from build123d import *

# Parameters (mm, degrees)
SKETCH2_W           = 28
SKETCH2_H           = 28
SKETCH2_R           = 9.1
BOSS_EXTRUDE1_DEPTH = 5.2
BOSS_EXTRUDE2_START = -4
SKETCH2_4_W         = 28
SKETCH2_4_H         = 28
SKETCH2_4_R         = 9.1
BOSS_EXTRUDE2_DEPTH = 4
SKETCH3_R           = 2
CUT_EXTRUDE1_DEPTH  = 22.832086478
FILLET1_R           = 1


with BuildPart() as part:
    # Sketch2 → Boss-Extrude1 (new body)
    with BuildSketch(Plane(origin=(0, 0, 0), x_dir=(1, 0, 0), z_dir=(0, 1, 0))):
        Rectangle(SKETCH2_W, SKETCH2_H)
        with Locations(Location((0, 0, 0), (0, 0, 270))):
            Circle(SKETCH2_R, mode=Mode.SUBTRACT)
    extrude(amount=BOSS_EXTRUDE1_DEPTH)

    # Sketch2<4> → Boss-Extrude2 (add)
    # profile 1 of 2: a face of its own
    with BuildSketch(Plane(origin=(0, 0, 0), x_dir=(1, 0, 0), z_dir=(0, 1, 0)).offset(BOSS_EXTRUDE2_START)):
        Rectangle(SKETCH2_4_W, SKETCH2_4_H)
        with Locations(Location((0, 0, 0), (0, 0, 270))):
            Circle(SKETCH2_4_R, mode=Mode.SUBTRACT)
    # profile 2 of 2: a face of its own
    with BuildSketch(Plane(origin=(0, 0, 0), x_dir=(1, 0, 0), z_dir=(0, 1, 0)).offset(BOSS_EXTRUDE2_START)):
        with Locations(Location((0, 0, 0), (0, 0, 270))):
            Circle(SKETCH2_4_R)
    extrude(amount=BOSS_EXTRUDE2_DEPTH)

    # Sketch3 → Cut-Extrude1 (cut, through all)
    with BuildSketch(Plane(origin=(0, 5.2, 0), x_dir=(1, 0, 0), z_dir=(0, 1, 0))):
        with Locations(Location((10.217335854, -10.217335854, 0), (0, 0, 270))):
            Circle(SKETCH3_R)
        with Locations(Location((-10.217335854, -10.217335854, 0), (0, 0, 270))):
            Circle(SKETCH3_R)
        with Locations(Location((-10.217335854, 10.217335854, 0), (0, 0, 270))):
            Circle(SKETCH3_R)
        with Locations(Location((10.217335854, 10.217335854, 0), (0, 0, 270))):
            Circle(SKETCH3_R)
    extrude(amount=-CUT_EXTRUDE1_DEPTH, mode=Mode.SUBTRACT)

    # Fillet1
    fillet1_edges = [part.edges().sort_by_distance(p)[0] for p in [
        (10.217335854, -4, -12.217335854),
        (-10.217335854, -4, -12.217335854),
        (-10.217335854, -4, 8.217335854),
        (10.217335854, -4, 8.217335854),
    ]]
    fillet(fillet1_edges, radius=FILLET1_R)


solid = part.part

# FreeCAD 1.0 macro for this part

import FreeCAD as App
import Part
import Sketcher
from FreeCAD import Vector
Q = App.Units.Quantity


def edges_at(feature, points):
    """Names of the edges that pass closest to the given points."""
    edges = feature.Shape.Edges
    near = lambda p: min(range(len(edges)), key=lambda i: edges[i].distToShape(Part.Vertex(*p))[0])
    return sorted({f"Edge{near(p) + 1}" for p in points})


def add_polygon(sketch, points):
    """Adds a closed chain of lines whose ends are joined by coincident constraints."""
    first, n = sketch.GeometryCount, len(points)
    for a, b in zip(points, points[1:] + points[:1]):
        sketch.addGeometry(Part.LineSegment(App.Vector(*a, 0), App.Vector(*b, 0)), False)
    for i in range(n):
        sketch.addConstraint(Sketcher.Constraint("Coincident", first + i, 2, first + (i + 1) % n, 1))

doc = App.newDocument("Part")
params = doc.addObject("Spreadsheet::Sheet", "Params")
for row, (alias, value) in enumerate([
    ("sketch1_diameter", "18.2 mm"),
    ("sketch1_width", "28 mm"),
    ("pad1_length", "5.2 mm"),
    ("sketch2_width", "28 mm"),
    ("pad2_length", "4 mm"),
    ("sketch3_diameter", "4 mm"),
    ("fillet_radius", "1 mm"),
], start=1):
    params.set(f"A{row}", alias)
    params.set(f"B{row}", "=" + value)
    params.setAlias(f"B{row}", alias)

body = doc.addObject("PartDesign::Body", "Body")

sketch1 = doc.addObject("Sketcher::SketchObject", "Sketch")
body.addObject(sketch1)
sketch1.AttachmentSupport = (doc.XZ_Plane, [""])
sketch1.MapMode = "FlatFace"
add_polygon(sketch1, [(-14, -14), (-14, 14), (14, 14), (14, -14)])
sketch1.addGeometry(Part.Circle(Vector(0, 0, 0), Vector(0, 0, 1), 9.1), False)
sketch1.addConstraint([
    Sketcher.Constraint("Vertical", 0),
    Sketcher.Constraint("Horizontal", 1),
    Sketcher.Constraint("Vertical", 2),
    Sketcher.Constraint("Horizontal", 3),
    Sketcher.Constraint("Coincident", 4, 3, -1, 1),
    Sketcher.Constraint("Symmetric", 0, 2, 2, 2, -1, 1),
    Sketcher.Constraint("Equal", 3, 0),
    Sketcher.Constraint("Diameter", 4, Q("18.2 mm")),
    Sketcher.Constraint("DistanceX", 1, 1, 1, 2, Q("28 mm")),
])
sketch1.setExpression("Constraints[11]", "Params.sketch1_diameter")
sketch1.setExpression("Constraints[12]", "Params.sketch1_width")
pad1 = doc.addObject("PartDesign::Pad", "Pad")
body.addObject(pad1)
pad1.Profile = sketch1
pad1.setExpression("Length", "Params.pad1_length")
pad1.Reversed = True

sketch2 = doc.addObject("Sketcher::SketchObject", "Sketch001")
body.addObject(sketch2)
sketch2.AttachmentSupport = (doc.XZ_Plane, [""])
sketch2.MapMode = "FlatFace"
sketch2.AttachmentOffset = App.Placement(Vector(0, 0, 4), App.Rotation())
add_polygon(sketch2, [(-14, -14), (-14, 14), (14, 14), (14, -14)])
sketch2.addConstraint([
    Sketcher.Constraint("Vertical", 0),
    Sketcher.Constraint("Horizontal", 1),
    Sketcher.Constraint("Vertical", 2),
    Sketcher.Constraint("Horizontal", 3),
    Sketcher.Constraint("Symmetric", 0, 2, 2, 2, -1, 1),
    Sketcher.Constraint("Equal", 3, 0),
    Sketcher.Constraint("DistanceX", 1, 1, 1, 2, Q("28 mm")),
])
sketch2.setExpression("Constraints[10]", "Params.sketch2_width")
pad2 = doc.addObject("PartDesign::Pad", "Pad001")
body.addObject(pad2)
pad2.Profile = sketch2
pad2.setExpression("Length", "Params.pad2_length")
pad2.Reversed = True

sketch3 = doc.addObject("Sketcher::SketchObject", "Sketch002")
body.addObject(sketch3)
sketch3.AttachmentSupport = (doc.XZ_Plane, [""])
sketch3.MapMode = "FlatFace"
sketch3.AttachmentOffset = App.Placement(Vector(0, 0, -5.2), App.Rotation())
sketch3.addGeometry([
    Part.Circle(Vector(10.217336, 10.217336, 0), Vector(0, 0, 1), 2),
    Part.Circle(Vector(-10.217336, 10.217336, 0), Vector(0, 0, 1), 2),
    Part.Circle(Vector(-10.217336, -10.217336, 0), Vector(0, 0, 1), 2),
    Part.Circle(Vector(10.217336, -10.217336, 0), Vector(0, 0, 1), 2),
], False)
sketch3.addConstraint([
    Sketcher.Constraint("Equal", 0, 1),
    Sketcher.Constraint("Equal", 1, 2),
    Sketcher.Constraint("Equal", 2, 3),
    Sketcher.Constraint("Symmetric", 0, 3, 2, 3, -1, 1),
    Sketcher.Constraint("Symmetric", 1, 3, 3, 3, -1, 1),
    Sketcher.Constraint("Symmetric", 0, 3, 1, 3, -2),
    Sketcher.Constraint("Diameter", 0, Q("4 mm")),
    Sketcher.Constraint("DistanceX", 1, 3, 0, 3, Q("20.434672 mm")),
    Sketcher.Constraint("DistanceY", 2, 3, 1, 3, Q("20.434672 mm")),
])
sketch3.setExpression("Constraints[6]", "Params.sketch3_diameter")
pocket1 = doc.addObject("PartDesign::Pocket", "Pocket")
body.addObject(pocket1)
pocket1.Profile = sketch3
pocket1.Type = "ThroughAll"
pocket1.Reversed = True
doc.recompute()

fillet = doc.addObject("PartDesign::Fillet", "Fillet")
body.addObject(fillet)
fillet.Base = (pocket1, edges_at(pocket1, [
    (10.217, -4, -12.217),
    (-10.217, -4, -12.217),
    (-10.217, -4, 8.217),
    (10.217, -4, 8.217),
]))
fillet.setExpression("Radius", "Params.fillet_radius")

doc.recompute()
